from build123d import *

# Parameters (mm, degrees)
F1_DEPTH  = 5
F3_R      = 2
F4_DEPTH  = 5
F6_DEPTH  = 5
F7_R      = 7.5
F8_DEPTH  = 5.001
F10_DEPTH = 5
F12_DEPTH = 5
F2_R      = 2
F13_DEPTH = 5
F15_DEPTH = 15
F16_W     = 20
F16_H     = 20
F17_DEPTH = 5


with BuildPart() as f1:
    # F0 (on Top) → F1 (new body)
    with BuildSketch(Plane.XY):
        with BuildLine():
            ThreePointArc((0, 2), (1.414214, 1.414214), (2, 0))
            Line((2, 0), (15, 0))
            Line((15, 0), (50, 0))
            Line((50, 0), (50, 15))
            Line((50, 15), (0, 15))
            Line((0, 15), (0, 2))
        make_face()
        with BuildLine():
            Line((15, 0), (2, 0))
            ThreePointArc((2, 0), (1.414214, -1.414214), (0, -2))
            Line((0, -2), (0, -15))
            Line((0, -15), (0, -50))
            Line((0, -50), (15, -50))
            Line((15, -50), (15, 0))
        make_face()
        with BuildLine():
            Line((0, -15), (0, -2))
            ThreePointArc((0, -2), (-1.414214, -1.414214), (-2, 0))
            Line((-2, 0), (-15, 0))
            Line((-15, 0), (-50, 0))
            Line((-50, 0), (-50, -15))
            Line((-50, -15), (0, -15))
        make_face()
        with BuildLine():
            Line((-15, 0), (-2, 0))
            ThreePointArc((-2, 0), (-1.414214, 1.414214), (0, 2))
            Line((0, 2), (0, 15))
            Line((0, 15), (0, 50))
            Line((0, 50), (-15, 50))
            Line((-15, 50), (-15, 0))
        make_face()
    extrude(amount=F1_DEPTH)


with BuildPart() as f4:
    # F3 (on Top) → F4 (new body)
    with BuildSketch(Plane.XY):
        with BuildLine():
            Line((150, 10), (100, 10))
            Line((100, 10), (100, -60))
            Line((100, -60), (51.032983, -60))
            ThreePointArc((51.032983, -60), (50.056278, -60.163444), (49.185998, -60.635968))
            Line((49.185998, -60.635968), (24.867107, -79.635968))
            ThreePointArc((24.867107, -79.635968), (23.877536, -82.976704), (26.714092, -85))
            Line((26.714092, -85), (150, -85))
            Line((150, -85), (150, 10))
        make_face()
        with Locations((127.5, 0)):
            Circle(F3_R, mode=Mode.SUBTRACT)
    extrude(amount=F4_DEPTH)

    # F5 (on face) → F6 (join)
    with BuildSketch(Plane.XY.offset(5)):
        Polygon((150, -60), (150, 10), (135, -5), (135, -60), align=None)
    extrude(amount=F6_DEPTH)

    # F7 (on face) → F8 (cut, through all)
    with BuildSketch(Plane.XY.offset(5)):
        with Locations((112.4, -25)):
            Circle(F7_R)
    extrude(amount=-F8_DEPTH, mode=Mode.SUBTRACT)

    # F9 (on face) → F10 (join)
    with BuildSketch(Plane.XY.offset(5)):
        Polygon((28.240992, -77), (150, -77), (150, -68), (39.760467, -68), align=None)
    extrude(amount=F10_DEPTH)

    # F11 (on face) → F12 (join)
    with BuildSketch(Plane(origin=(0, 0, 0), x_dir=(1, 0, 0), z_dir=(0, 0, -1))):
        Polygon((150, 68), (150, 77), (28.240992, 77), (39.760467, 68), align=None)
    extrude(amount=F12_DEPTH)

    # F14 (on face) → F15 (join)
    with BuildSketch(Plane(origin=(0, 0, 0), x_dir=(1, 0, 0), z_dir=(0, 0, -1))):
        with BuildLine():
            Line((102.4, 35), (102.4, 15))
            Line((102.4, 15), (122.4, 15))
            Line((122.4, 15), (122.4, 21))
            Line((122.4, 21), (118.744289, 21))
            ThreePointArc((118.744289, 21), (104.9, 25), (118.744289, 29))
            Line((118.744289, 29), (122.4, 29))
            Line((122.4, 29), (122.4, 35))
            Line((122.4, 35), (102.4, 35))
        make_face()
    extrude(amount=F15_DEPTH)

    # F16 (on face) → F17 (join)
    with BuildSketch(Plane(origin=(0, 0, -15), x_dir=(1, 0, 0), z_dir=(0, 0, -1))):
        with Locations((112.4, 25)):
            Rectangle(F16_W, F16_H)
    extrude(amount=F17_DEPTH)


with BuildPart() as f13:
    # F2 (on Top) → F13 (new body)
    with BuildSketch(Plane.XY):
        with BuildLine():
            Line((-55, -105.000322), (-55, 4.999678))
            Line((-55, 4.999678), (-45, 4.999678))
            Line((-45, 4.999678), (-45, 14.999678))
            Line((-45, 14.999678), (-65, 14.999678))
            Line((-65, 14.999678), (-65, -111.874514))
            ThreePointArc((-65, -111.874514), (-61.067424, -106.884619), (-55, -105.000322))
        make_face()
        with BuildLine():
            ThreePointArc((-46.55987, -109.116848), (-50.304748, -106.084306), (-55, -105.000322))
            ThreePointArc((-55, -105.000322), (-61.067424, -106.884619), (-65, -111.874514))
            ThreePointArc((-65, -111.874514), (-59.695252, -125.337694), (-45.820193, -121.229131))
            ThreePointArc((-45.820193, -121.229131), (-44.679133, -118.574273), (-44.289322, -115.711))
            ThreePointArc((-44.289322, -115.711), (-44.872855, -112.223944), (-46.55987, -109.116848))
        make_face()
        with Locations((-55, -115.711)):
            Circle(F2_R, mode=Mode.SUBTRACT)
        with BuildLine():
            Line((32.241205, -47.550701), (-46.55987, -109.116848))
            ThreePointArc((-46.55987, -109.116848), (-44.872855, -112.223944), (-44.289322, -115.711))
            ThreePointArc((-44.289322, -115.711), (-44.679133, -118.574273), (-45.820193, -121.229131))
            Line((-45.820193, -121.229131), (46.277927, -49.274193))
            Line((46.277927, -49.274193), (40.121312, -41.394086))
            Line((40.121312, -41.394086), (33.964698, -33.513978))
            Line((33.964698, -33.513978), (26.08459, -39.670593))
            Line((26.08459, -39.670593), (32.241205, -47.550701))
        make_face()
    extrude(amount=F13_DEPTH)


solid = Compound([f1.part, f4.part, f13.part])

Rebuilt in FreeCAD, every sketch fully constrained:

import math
import FreeCAD as App
import Part
import Sketcher
Q = App.Units.Quantity

doc = App.newDocument("Part")
body = doc.addObject("PartDesign::Body", "Body")

# Sketch on XY plane
sketch1 = body.newObject("Sketcher::SketchObject", "Sketch")
sketch1.AttachmentSupport = (doc.getObject("XY_Plane"), [""])
sketch1.MapMode = "FlatFace"
sketch1.addGeometry([
    Part.LineSegment(App.Vector(-15, 0, 0), App.Vector(-50, 0, 0)),  # 0
    Part.LineSegment(App.Vector(-50, 0, 0), App.Vector(-50, -15, 0)),  # 1
    Part.LineSegment(App.Vector(-50, -15, 0), App.Vector(0, -15, 0)),  # 2
    Part.LineSegment(App.Vector(0, -15, 0), App.Vector(0, -50, 0)),  # 3
    Part.LineSegment(App.Vector(0, -50, 0), App.Vector(15, -50, 0)),  # 4
    Part.LineSegment(App.Vector(15, -50, 0), App.Vector(15, 0, 0)),  # 5
    Part.LineSegment(App.Vector(15, 0, 0), App.Vector(50, 0, 0)),  # 6
    Part.LineSegment(App.Vector(50, 0, 0), App.Vector(50, 15, 0)),  # 7
    Part.LineSegment(App.Vector(50, 15, 0), App.Vector(0, 15, 0)),  # 8
    Part.LineSegment(App.Vector(0, 15, 0), App.Vector(0, 50, 0)),  # 9
    Part.LineSegment(App.Vector(0, 50, 0), App.Vector(-15, 50, 0)),  # 10
    Part.LineSegment(App.Vector(-15, 50, 0), App.Vector(-15, 0, 0)),  # 11
    Part.ArcOfCircle(Part.Circle(App.Vector(0, 0, 0), App.Vector(0, 0, 1), 2), math.radians(0), math.radians(90)),  # 12
    Part.ArcOfCircle(Part.Circle(App.Vector(0, 0, 0), App.Vector(0, 0, 1), 2), math.radians(-90), math.radians(0)),  # 13
    Part.ArcOfCircle(Part.Circle(App.Vector(0, 0, 0), App.Vector(0, 0, 1), 2), math.radians(180), math.radians(270)),  # 14
    Part.ArcOfCircle(Part.Circle(App.Vector(0, 0, 0), App.Vector(0, 0, 1), 2), math.radians(90), math.radians(180)),  # 15
], False)
sketch1.addConstraint([
    Sketcher.Constraint("Coincident", 0, 2, 1, 1),
    Sketcher.Constraint("Coincident", 1, 2, 2, 1),
    Sketcher.Constraint("Coincident", 2, 2, 3, 1),
    Sketcher.Constraint("Coincident", 3, 2, 4, 1),
    Sketcher.Constraint("Coincident", 4, 2, 5, 1),
    Sketcher.Constraint("Coincident", 5, 2, 6, 1),
    Sketcher.Constraint("Coincident", 6, 2, 7, 1),
    Sketcher.Constraint("Coincident", 7, 2, 8, 1),
    Sketcher.Constraint("Coincident", 8, 2, 9, 1),
    Sketcher.Constraint("Coincident", 9, 2, 10, 1),
    Sketcher.Constraint("Coincident", 10, 2, 11, 1),
    Sketcher.Constraint("Coincident", 11, 2, 0, 1),
    Sketcher.Constraint("Tangent", 12, 1, 13, 2),
    Sketcher.Constraint("Tangent", 13, 1, 14, 2),
    Sketcher.Constraint("Tangent", 14, 1, 15, 2),
    Sketcher.Constraint("Tangent", 15, 1, 12, 2),
    Sketcher.Constraint("Horizontal", 0),
    Sketcher.Constraint("Vertical", 1),
    Sketcher.Constraint("Horizontal", 2),
    Sketcher.Constraint("Vertical", 3),
    Sketcher.Constraint("Horizontal", 4),
    Sketcher.Constraint("Vertical", 5),
    Sketcher.Constraint("Horizontal", 6),
    Sketcher.Constraint("Vertical", 7),
    Sketcher.Constraint("Horizontal", 8),
    Sketcher.Constraint("Vertical", 9),
    Sketcher.Constraint("Horizontal", 10),
    Sketcher.Constraint("Vertical", 11),
    Sketcher.Constraint("Coincident", 12, 3, -1, 1),
    Sketcher.Constraint("Equal", 12, 13),
    Sketcher.Constraint("Symmetric", 0, 2, 6, 2, -1, 1),
    Sketcher.Constraint("Symmetric", 2, 2, 8, 2, -1, 1),
    Sketcher.Constraint("Symmetric", 4, 2, 10, 2, -1, 1),
    Sketcher.Constraint("PointOnObject", 0, 2, -1),
    Sketcher.Constraint("PointOnObject", 2, 2, -2),
    Sketcher.Constraint("PointOnObject", 12, 1, -1),
    Sketcher.Constraint("PointOnObject", 13, 1, -2),
    Sketcher.Constraint("PointOnObject", 14, 1, -1),
    Sketcher.Constraint("PointOnObject", 15, 1, -2),
    Sketcher.Constraint("Equal", 10, 1),
    Sketcher.Constraint("Equal", 6, 3),
    Sketcher.Constraint("Radius", 12, 1.999999),
    Sketcher.Constraint("DistanceX", 0, 2, 0, 1, 35.0),
    Sketcher.Constraint("DistanceX", 2, 1, 2, 2, 50.0),
])
pad1 = body.newObject("PartDesign::Pad", "Pad")
pad1.Profile = sketch1
pad1.Length = 5
body2 = doc.addObject("PartDesign::Body", "Body001")

# Sketch on XY plane
sketch2 = body2.newObject("Sketcher::SketchObject", "Sketch001")
sketch2.AttachmentSupport = (doc.getObject("XY_Plane001"), [""])
sketch2.MapMode = "FlatFace"
sketch2.addGeometry([
    Part.LineSegment(App.Vector(150, 10, 0), App.Vector(100, 10, 0)),  # 0
    Part.LineSegment(App.Vector(100, 10, 0), App.Vector(100, -60, 0)),  # 1
    Part.LineSegment(App.Vector(100, -60, 0), App.Vector(51, -60, 0)),  # 2
    Part.ArcOfCircle(Part.Circle(App.Vector(51, -63, 0), App.Vector(0, 0, 1), 3), math.radians(90), math.radians(128)),  # 3
    Part.LineSegment(App.Vector(49.2, -60.6, 0), App.Vector(24.9, -79.6, 0)),  # 4
    Part.ArcOfCircle(Part.Circle(App.Vector(26.7, -82, 0), App.Vector(0, 0, 1), 3), math.radians(128), math.radians(270)),  # 5
    Part.LineSegment(App.Vector(26.7, -85, 0), App.Vector(150, -85, 0)),  # 6
    Part.LineSegment(App.Vector(150, -85, 0), App.Vector(150, 10, 0)),  # 7
    Part.Circle(App.Vector(127.5, 0, 0), App.Vector(0, 0, 1), 2),  # 8
], False)
sketch2.addConstraint([
    Sketcher.Constraint("Coincident", 0, 2, 1, 1),
    Sketcher.Constraint("Coincident", 1, 2, 2, 1),
    Sketcher.Constraint("Tangent", 2, 2, 3, 1),
    Sketcher.Constraint("Tangent", 3, 2, 4, 1),
    Sketcher.Constraint("Tangent", 4, 2, 5, 1),
    Sketcher.Constraint("Tangent", 5, 2, 6, 1),
    Sketcher.Constraint("Coincident", 6, 2, 7, 1),
    Sketcher.Constraint("Coincident", 7, 2, 0, 1),
    Sketcher.Constraint("Horizontal", 0),
    Sketcher.Constraint("Vertical", 1),
    Sketcher.Constraint("Horizontal", 2),
    Sketcher.Constraint("Horizontal", 6),
    Sketcher.Constraint("Vertical", 7),
    Sketcher.Constraint("PointOnObject", 8, 3, -1),
    Sketcher.Constraint("Diameter", 8, 4.0),
    Sketcher.Constraint("Radius", 5, 3.0),
    Sketcher.Constraint("DistanceX", 0, 2, 0, 1, 50.0),
    Sketcher.Constraint("DistanceY", 1, 2, 1, 1, 70.0),
    Sketcher.Constraint("DistanceY", 7, 1, 7, 2, 95.0),
    Sketcher.Constraint("Angle", 4, Q("-142 deg")),
    Sketcher.Constraint("DistanceY", 5, 3, -1, 1, 82.0),
    Sketcher.Constraint("DistanceX", -1, 1, 0, 2, 100.0),
    Sketcher.Constraint("DistanceY", 4, 2, 3, 2, 19.0),
    Sketcher.Constraint("DistanceX", -1, 1, 8, 3, 127.5),
    Sketcher.Constraint("DistanceX", 6, 1, 6, 2, 123.285908),
])
pad2 = body2.newObject("PartDesign::Pad", "Pad001")
pad2.Profile = sketch2
pad2.Length = 5

# Sketch on XY plane
sketch3 = body2.newObject("Sketcher::SketchObject", "Sketch002")
sketch3.AttachmentSupport = (doc.getObject("XY_Plane001"), [""])
sketch3.MapMode = "FlatFace"
sketch3.AttachmentOffset = App.Placement(App.Vector(0, 0, 5), App.Rotation())
sketch3.addGeometry([
    Part.LineSegment(App.Vector(150, -60, 0), App.Vector(150, 10, 0)),
    Part.LineSegment(App.Vector(150, 10, 0), App.Vector(135, -5, 0)),
    Part.LineSegment(App.Vector(135, -5, 0), App.Vector(135, -60, 0)),
    Part.LineSegment(App.Vector(135, -60, 0), App.Vector(150, -60, 0)),
], False)
sketch3.addConstraint([
    Sketcher.Constraint("Coincident", 0, 2, 1, 1),
    Sketcher.Constraint("Coincident", 1, 2, 2, 1),
    Sketcher.Constraint("Coincident", 2, 2, 3, 1),
    Sketcher.Constraint("Coincident", 3, 2, 0, 1),
    Sketcher.Constraint("Vertical", 0),
    Sketcher.Constraint("Vertical", 2),
    Sketcher.Constraint("Horizontal", 3),
    Sketcher.Constraint("DistanceX", 3, 1, 3, 2, 15.0),
    Sketcher.Constraint("DistanceY", 0, 1, 0, 2, 70.0),
    Sketcher.Constraint("DistanceY", 2, 2, 2, 1, 55.0),
    Sketcher.Constraint("DistanceX", -1, 1, 0, 2, 150.0),
    Sketcher.Constraint("DistanceY", -1, 1, 0, 2, 10.0),
])
pad3 = body2.newObject("PartDesign::Pad", "Pad002")
pad3.Profile = sketch3
pad3.Length = 5

# Sketch on XY plane
sketch4 = body2.newObject("Sketcher::SketchObject", "Sketch003")
sketch4.AttachmentSupport = (doc.getObject("XY_Plane001"), [""])
sketch4.MapMode = "FlatFace"
sketch4.AttachmentOffset = App.Placement(App.Vector(0, 0, 5), App.Rotation())
sketch4.addGeometry(Part.Circle(App.Vector(112, -25, 0), App.Vector(0, 0, 1), 8), False)
sketch4.addConstraint([
    Sketcher.Constraint("Diameter", 0, 15.0),
    Sketcher.Constraint("DistanceY", 0, 3, -1, 1, 25.0),
    Sketcher.Constraint("DistanceX", -1, 1, 0, 3, 112.4),
])
pocket1 = body2.newObject("PartDesign::Pocket", "Pocket")
pocket1.Profile = sketch4
pocket1.Type = "ThroughAll"

# Sketch on XY plane
sketch5 = body2.newObject("Sketcher::SketchObject", "Sketch004")
sketch5.AttachmentSupport = (doc.getObject("XY_Plane001"), [""])
sketch5.MapMode = "FlatFace"
sketch5.AttachmentOffset = App.Placement(App.Vector(0, 0, 5), App.Rotation())
sketch5.addGeometry([
    Part.LineSegment(App.Vector(28, -77, 0), App.Vector(150, -77, 0)),
    Part.LineSegment(App.Vector(150, -77, 0), App.Vector(150, -68, 0)),
    Part.LineSegment(App.Vector(150, -68, 0), App.Vector(40, -68, 0)),
    Part.LineSegment(App.Vector(40, -68, 0), App.Vector(28, -77, 0)),
], False)
sketch5.addConstraint([
    Sketcher.Constraint("Coincident", 0, 2, 1, 1),
    Sketcher.Constraint("Coincident", 1, 2, 2, 1),
    Sketcher.Constraint("Coincident", 2, 2, 3, 1),
    Sketcher.Constraint("Coincident", 3, 2, 0, 1),
    Sketcher.Constraint("Horizontal", 0),
    Sketcher.Constraint("Vertical", 1),
    Sketcher.Constraint("Horizontal", 2),
    Sketcher.Constraint("DistanceY", 1, 1, 1, 2, 9.0),
    Sketcher.Constraint("Angle", 3, Q("-142.000001 deg")),
    Sketcher.Constraint("DistanceX", -1, 1, 0, 2, 150.0),
    Sketcher.Constraint("DistanceY", 0, 2, -1, 1, 77.0),
    Sketcher.Constraint("DistanceX", 0, 1, 0, 2, 121.759008),
])
pad4 = body2.newObject("PartDesign::Pad", "Pad003")
pad4.Profile = sketch5
pad4.Length = 5

# Sketch on XY plane
sketch6 = body2.newObject("Sketcher::SketchObject", "Sketch005")
sketch6.AttachmentSupport = (doc.getObject("XY_Plane001"), [""])
sketch6.MapMode = "FlatFace"
sketch6.addGeometry([
    Part.LineSegment(App.Vector(150, -68, 0), App.Vector(150, -77, 0)),
    Part.LineSegment(App.Vector(150, -77, 0), App.Vector(28, -77, 0)),
    Part.LineSegment(App.Vector(28, -77, 0), App.Vector(40, -68, 0)),
    Part.LineSegment(App.Vector(40, -68, 0), App.Vector(150, -68, 0)),
], False)
sketch6.addConstraint([
    Sketcher.Constraint("Coincident", 0, 2, 1, 1),
    Sketcher.Constraint("Coincident", 1, 2, 2, 1),
    Sketcher.Constraint("Coincident", 2, 2, 3, 1),
    Sketcher.Constraint("Coincident", 3, 2, 0, 1),
    Sketcher.Constraint("Vertical", 0),
    Sketcher.Constraint("Horizontal", 1),
    Sketcher.Constraint("Horizontal", 3),
    Sketcher.Constraint("DistanceY", 0, 2, 0, 1, 9.0),
    Sketcher.Constraint("Angle", 2, Q("37.999999 deg")),
    Sketcher.Constraint("DistanceX", -1, 1, 0, 2, 150.0),
    Sketcher.Constraint("DistanceY", 0, 2, -1, 1, 77.0),
    Sketcher.Constraint("DistanceX", 1, 2, 1, 1, 121.759008),
])
pad5 = body2.newObject("PartDesign::Pad", "Pad004")
pad5.Profile = sketch6
pad5.Length = 5
pad5.Reversed = True

# Sketch on XY plane
sketch7 = body2.newObject("Sketcher::SketchObject", "Sketch006")
sketch7.AttachmentSupport = (doc.getObject("XY_Plane001"), [""])
sketch7.MapMode = "FlatFace"
sketch7.addGeometry([
    Part.LineSegment(App.Vector(102.4, -35, 0), App.Vector(102.4, -15, 0)),  # 0
    Part.LineSegment(App.Vector(102.4, -15, 0), App.Vector(122.4, -15, 0)),  # 1
    Part.LineSegment(App.Vector(122.4, -15, 0), App.Vector(122.4, -21, 0)),  # 2
    Part.LineSegment(App.Vector(122.4, -21, 0), App.Vector(118.7, -21, 0)),  # 3
    Part.ArcOfCircle(Part.Circle(App.Vector(112.4, -25, 0), App.Vector(0, 0, 1), 7.5), math.radians(32), math.radians(328)),  # 4
    Part.LineSegment(App.Vector(118.7, -29, 0), App.Vector(122.4, -29, 0)),  # 5
    Part.LineSegment(App.Vector(122.4, -29, 0), App.Vector(122.4, -35, 0)),  # 6
    Part.LineSegment(App.Vector(122.4, -35, 0), App.Vector(102.4, -35, 0)),  # 7
], False)
sketch7.addConstraint([
    Sketcher.Constraint("Coincident", 0, 2, 1, 1),
    Sketcher.Constraint("Coincident", 1, 2, 2, 1),
    Sketcher.Constraint("Coincident", 2, 2, 3, 1),
    Sketcher.Constraint("Coincident", 3, 2, 4, 1),
    Sketcher.Constraint("Coincident", 4, 2, 5, 1),
    Sketcher.Constraint("Coincident", 5, 2, 6, 1),
    Sketcher.Constraint("Coincident", 6, 2, 7, 1),
    Sketcher.Constraint("Coincident", 7, 2, 0, 1),
    Sketcher.Constraint("Vertical", 0),
    Sketcher.Constraint("Horizontal", 1),
    Sketcher.Constraint("Vertical", 2),
    Sketcher.Constraint("Horizontal", 3),
    Sketcher.Constraint("Horizontal", 5),
    Sketcher.Constraint("Vertical", 6),
    Sketcher.Constraint("Horizontal", 7),
    Sketcher.Constraint("Vertical", 3, 2, 4, 2),
    Sketcher.Constraint("Vertical", 2, 2, 5, 2),
    Sketcher.Constraint("Equal", 7, 0),
    Sketcher.Constraint("Equal", 2, 6),
    Sketcher.Constraint("Radius", 4, 7.5),
    Sketcher.Constraint("DistanceX", 1, 1, 1, 2, 20.0),
    Sketcher.Constraint("DistanceY", 2, 2, 2, 1, 6.0),
    Sketcher.Constraint("DistanceY", 4, 3, -1, 1, 25.0),
    Sketcher.Constraint("DistanceX", 0, 2, 4, 3, 10.0),
    Sketcher.Constraint("DistanceX", -1, 1, 4, 3, 112.4),
])
pad6 = body2.newObject("PartDesign::Pad", "Pad005")
pad6.Profile = sketch7
pad6.Length = 15
pad6.Reversed = True

# Sketch on XY plane
sketch8 = body2.newObject("Sketcher::SketchObject", "Sketch007")
sketch8.AttachmentSupport = (doc.getObject("XY_Plane001"), [""])
sketch8.MapMode = "FlatFace"
sketch8.AttachmentOffset = App.Placement(App.Vector(0, 0, -15), App.Rotation())
sketch8.addGeometry([
    Part.LineSegment(App.Vector(102, -35, 0), App.Vector(102, -15, 0)),
    Part.LineSegment(App.Vector(102, -15, 0), App.Vector(122, -15, 0)),
    Part.LineSegment(App.Vector(122, -15, 0), App.Vector(122, -35, 0)),
    Part.LineSegment(App.Vector(122, -35, 0), App.Vector(102, -35, 0)),
], False)
sketch8.addConstraint([
    Sketcher.Constraint("Coincident", 0, 2, 1, 1),
    Sketcher.Constraint("Coincident", 1, 2, 2, 1),
    Sketcher.Constraint("Coincident", 2, 2, 3, 1),
    Sketcher.Constraint("Coincident", 3, 2, 0, 1),
    Sketcher.Constraint("Vertical", 0),
    Sketcher.Constraint("Horizontal", 1),
    Sketcher.Constraint("Vertical", 2),
    Sketcher.Constraint("Horizontal", 3),
    Sketcher.Constraint("Equal", 3, 0),
    Sketcher.Constraint("DistanceX", 1, 1, 1, 2, 20.0),
    Sketcher.Constraint("DistanceY", 0, 2, -1, 1, 15.0),
    Sketcher.Constraint("DistanceX", -1, 1, 0, 2, 102.4),
])
pad7 = body2.newObject("PartDesign::Pad", "Pad006")
pad7.Profile = sketch8
pad7.Length = 5
pad7.Reversed = True
body3 = doc.addObject("PartDesign::Body", "Body002")

# Sketch on XY plane
sketch9 = body3.newObject("Sketcher::SketchObject", "Sketch008")
sketch9.AttachmentSupport = (doc.getObject("XY_Plane002"), [""])
sketch9.MapMode = "FlatFace"
sketch9.addGeometry([
    Part.LineSegment(App.Vector(-55, -105, 0), App.Vector(-55, 5, 0)),  # 0
    Part.LineSegment(App.Vector(-55, 5, 0), App.Vector(-45, 5, 0)),  # 1
    Part.LineSegment(App.Vector(-45, 5, 0), App.Vector(-45, 15, 0)),  # 2
    Part.LineSegment(App.Vector(-45, 15, 0), App.Vector(-65, 15, 0)),  # 3
    Part.LineSegment(App.Vector(-65, 15, 0), App.Vector(-65, -111.9, 0)),  # 4
    Part.ArcOfCircle(Part.Circle(App.Vector(-55, -115.7, 0), App.Vector(0, 0, 1), 10.7), math.radians(159), math.radians(329)),  # 5
    Part.LineSegment(App.Vector(-45.8, -121.2, 0), App.Vector(46.3, -49.3, 0)),  # 6
    Part.LineSegment(App.Vector(46.3, -49.3, 0), App.Vector(40.1, -41.4, 0)),  # 7
    Part.LineSegment(App.Vector(40.1, -41.4, 0), App.Vector(34, -33.5, 0)),  # 8
    Part.LineSegment(App.Vector(34, -33.5, 0), App.Vector(26.1, -39.7, 0)),  # 9
    Part.LineSegment(App.Vector(26.1, -39.7, 0), App.Vector(32.2, -47.6, 0)),  # 10
    Part.LineSegment(App.Vector(32.2, -47.6, 0), App.Vector(-46.6, -109.1, 0)),  # 11
    Part.ArcOfCircle(Part.Circle(App.Vector(-55, -115.7, 0), App.Vector(0, 0, 1), 10.7), math.radians(38), math.radians(90)),  # 12
    Part.Circle(App.Vector(-55, -115.7, 0), App.Vector(0, 0, 1), 2),  # 13
], False)
sketch9.addConstraint([
    Sketcher.Constraint("Coincident", 0, 2, 1, 1),
    Sketcher.Constraint("Coincident", 1, 2, 2, 1),
    Sketcher.Constraint("Coincident", 2, 2, 3, 1),
    Sketcher.Constraint("Coincident", 3, 2, 4, 1),
    Sketcher.Constraint("Coincident", 4, 2, 5, 1),
    Sketcher.Constraint("Coincident", 5, 2, 6, 1),
    Sketcher.Constraint("Coincident", 6, 2, 7, 1),
    Sketcher.Constraint("Coincident", 7, 2, 8, 1),
    Sketcher.Constraint("Coincident", 8, 2, 9, 1),
    Sketcher.Constraint("Coincident", 9, 2, 10, 1),
    Sketcher.Constraint("Coincident", 10, 2, 11, 1),
    Sketcher.Constraint("Coincident", 11, 2, 12, 1),
    Sketcher.Constraint("Coincident", 12, 2, 0, 1),
    Sketcher.Constraint("Vertical", 0),
    Sketcher.Constraint("Horizontal", 1),
    Sketcher.Constraint("Vertical", 2),
    Sketcher.Constraint("Horizontal", 3),
    Sketcher.Constraint("Vertical", 4),
    Sketcher.Constraint("Coincident", 12, 3, 5, 3),
    Sketcher.Constraint("Coincident", 13, 3, 5, 3),
    Sketcher.Constraint("Equal", 5, 12),
    Sketcher.Constraint("Perpendicular", 6, 7),
    Sketcher.Constraint("Parallel", 7, 8),
    Sketcher.Constraint("Perpendicular", 8, 9),
    Sketcher.Constraint("Perpendicular", 9, 10),
    Sketcher.Constraint("Perpendicular", 10, 11),
    Sketcher.Constraint("Vertical", 13, 3, 0, 2),
    Sketcher.Constraint("Equal", 1, 2),
    Sketcher.Constraint("Equal", 7, 8),
    Sketcher.Constraint("Equal", 8, 9),
    Sketcher.Constraint("Equal", 9, 10),
    Sketcher.Constraint("Diameter", 13, 4.0),
    Sketcher.Constraint("DistanceX", 1, 1, 1, 2, 10.0),
    Sketcher.Constraint("DistanceX", 3, 2, 3, 1, 20.0),
    Sketcher.Constraint("DistanceY", 0, 1, 0, 2, 110.0),
    Sketcher.Constraint("Angle", 6, Q("38 deg")),
    Sketcher.Constraint("Distance", 7, 10.0),
    Sketcher.Constraint("Distance", 11, 99.999999),
    Sketcher.Constraint("DistanceX", 5, 3, -1, 1, 55.0),
    Sketcher.Constraint("Radius", 5, 10.710678),
    Sketcher.Constraint("DistanceY", 5, 3, -1, 1, 115.711),
    Sketcher.Constraint("DistanceY", 10, 2, -1, 1, 47.550701),
])
pad8 = body3.newObject("PartDesign::Pad", "Pad007")
pad8.Profile = sketch9
pad8.Length = 5

doc.recompute()
